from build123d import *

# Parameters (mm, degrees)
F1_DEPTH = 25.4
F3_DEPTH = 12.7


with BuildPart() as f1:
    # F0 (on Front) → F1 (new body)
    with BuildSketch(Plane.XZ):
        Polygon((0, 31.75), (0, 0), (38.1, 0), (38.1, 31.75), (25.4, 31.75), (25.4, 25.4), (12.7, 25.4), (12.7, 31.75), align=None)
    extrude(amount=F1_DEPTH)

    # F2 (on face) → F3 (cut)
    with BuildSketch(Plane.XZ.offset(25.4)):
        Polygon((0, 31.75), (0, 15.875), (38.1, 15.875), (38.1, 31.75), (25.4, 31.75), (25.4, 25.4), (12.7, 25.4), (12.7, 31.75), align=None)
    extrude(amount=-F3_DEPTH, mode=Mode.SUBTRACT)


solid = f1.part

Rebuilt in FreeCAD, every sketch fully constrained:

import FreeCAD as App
import Part
import Sketcher
Q = App.Units.Quantity


def add_polygon(sketch, points):
    """Adds a closed chain of lines whose ends are joined by coincident constraints."""
    first, n = sketch.GeometryCount, len(points)
    for a, b in zip(points, points[1:] + points[:1]):
        sketch.addGeometry(Part.LineSegment(App.Vector(*a, 0), App.Vector(*b, 0)), False)
    for i in range(n):
        sketch.addConstraint(Sketcher.Constraint("Coincident", first + i, 2, first + (i + 1) % n, 1))

doc = App.newDocument("Part")
body = doc.addObject("PartDesign::Body", "Body")

sketch1 = body.newObject("Sketcher::SketchObject", "Sketch")
sketch1.AttachmentSupport = (doc.getObject("XZ_Plane"), [""])
sketch1.MapMode = "FlatFace"
add_polygon(sketch1, [(0, 32), (0, 0), (38, 0), (38, 32), (25, 32), (25, 25), (13, 25), (13, 32)])
sketch1.addConstraint([
    Sketcher.Constraint("Vertical", 0),
    Sketcher.Constraint("Horizontal", 1),
    Sketcher.Constraint("Vertical", 2),
    Sketcher.Constraint("Horizontal", 3),
    Sketcher.Constraint("Vertical", 4),
    Sketcher.Constraint("Horizontal", 5),
    Sketcher.Constraint("Vertical", 6),
    Sketcher.Constraint("Horizontal", 7),
    Sketcher.Constraint("Coincident", 0, 2, -1, 1),
    Sketcher.Constraint("Horizontal", 3, 2, 6, 2),
    Sketcher.Constraint("Equal", 3, 5),
    Sketcher.Constraint("Equal", 5, 7),
    Sketcher.Constraint("DistanceX", 1, 1, 1, 2, Q("1.5 in")),
    Sketcher.Constraint("DistanceY", -1, 1, 4, 2, Q("1 in")),
    Sketcher.Constraint("DistanceY", 0, 2, 0, 1, Q("1.25 in")),
])
pad1 = body.newObject("PartDesign::Pad", "Pad")
pad1.Profile = sketch1
pad1.Length = Q("1 in")

sketch2 = body.newObject("Sketcher::SketchObject", "Sketch001")
sketch2.AttachmentSupport = (doc.getObject("XZ_Plane"), [""])
sketch2.MapMode = "FlatFace"
sketch2.AttachmentOffset = App.Placement(App.Vector(0, 0, 1 * 25.4), App.Rotation())
add_polygon(sketch2, [(0, 32), (0, 16), (38, 16), (38, 32), (25, 32), (25, 25), (13, 25), (13, 32)])
sketch2.addConstraint([
    Sketcher.Constraint("Vertical", 0),
    Sketcher.Constraint("Horizontal", 1),
    Sketcher.Constraint("Vertical", 2),
    Sketcher.Constraint("Horizontal", 3),
    Sketcher.Constraint("Vertical", 4),
    Sketcher.Constraint("Horizontal", 5),
    Sketcher.Constraint("Vertical", 6),
    Sketcher.Constraint("Horizontal", 7),
    Sketcher.Constraint("PointOnObject", 0, 2, -2),
    Sketcher.Constraint("Horizontal", 3, 2, 6, 2),
    Sketcher.Constraint("Equal", 3, 5),
    Sketcher.Constraint("Equal", 5, 7),
    Sketcher.Constraint("DistanceX", 1, 1, 1, 2, Q("1.5 in")),
    Sketcher.Constraint("DistanceY", -1, 1, 4, 2, Q("1 in")),
    Sketcher.Constraint("DistanceY", 4, 2, 4, 1, Q("0.25 in")),
    Sketcher.Constraint("DistanceY", 0, 2, 0, 1, Q("0.625 in")),
])
pocket1 = body.newObject("PartDesign::Pocket", "Pocket")
pocket1.Profile = sketch2
pocket1.Length = Q("0.5 in")

doc.recompute()
